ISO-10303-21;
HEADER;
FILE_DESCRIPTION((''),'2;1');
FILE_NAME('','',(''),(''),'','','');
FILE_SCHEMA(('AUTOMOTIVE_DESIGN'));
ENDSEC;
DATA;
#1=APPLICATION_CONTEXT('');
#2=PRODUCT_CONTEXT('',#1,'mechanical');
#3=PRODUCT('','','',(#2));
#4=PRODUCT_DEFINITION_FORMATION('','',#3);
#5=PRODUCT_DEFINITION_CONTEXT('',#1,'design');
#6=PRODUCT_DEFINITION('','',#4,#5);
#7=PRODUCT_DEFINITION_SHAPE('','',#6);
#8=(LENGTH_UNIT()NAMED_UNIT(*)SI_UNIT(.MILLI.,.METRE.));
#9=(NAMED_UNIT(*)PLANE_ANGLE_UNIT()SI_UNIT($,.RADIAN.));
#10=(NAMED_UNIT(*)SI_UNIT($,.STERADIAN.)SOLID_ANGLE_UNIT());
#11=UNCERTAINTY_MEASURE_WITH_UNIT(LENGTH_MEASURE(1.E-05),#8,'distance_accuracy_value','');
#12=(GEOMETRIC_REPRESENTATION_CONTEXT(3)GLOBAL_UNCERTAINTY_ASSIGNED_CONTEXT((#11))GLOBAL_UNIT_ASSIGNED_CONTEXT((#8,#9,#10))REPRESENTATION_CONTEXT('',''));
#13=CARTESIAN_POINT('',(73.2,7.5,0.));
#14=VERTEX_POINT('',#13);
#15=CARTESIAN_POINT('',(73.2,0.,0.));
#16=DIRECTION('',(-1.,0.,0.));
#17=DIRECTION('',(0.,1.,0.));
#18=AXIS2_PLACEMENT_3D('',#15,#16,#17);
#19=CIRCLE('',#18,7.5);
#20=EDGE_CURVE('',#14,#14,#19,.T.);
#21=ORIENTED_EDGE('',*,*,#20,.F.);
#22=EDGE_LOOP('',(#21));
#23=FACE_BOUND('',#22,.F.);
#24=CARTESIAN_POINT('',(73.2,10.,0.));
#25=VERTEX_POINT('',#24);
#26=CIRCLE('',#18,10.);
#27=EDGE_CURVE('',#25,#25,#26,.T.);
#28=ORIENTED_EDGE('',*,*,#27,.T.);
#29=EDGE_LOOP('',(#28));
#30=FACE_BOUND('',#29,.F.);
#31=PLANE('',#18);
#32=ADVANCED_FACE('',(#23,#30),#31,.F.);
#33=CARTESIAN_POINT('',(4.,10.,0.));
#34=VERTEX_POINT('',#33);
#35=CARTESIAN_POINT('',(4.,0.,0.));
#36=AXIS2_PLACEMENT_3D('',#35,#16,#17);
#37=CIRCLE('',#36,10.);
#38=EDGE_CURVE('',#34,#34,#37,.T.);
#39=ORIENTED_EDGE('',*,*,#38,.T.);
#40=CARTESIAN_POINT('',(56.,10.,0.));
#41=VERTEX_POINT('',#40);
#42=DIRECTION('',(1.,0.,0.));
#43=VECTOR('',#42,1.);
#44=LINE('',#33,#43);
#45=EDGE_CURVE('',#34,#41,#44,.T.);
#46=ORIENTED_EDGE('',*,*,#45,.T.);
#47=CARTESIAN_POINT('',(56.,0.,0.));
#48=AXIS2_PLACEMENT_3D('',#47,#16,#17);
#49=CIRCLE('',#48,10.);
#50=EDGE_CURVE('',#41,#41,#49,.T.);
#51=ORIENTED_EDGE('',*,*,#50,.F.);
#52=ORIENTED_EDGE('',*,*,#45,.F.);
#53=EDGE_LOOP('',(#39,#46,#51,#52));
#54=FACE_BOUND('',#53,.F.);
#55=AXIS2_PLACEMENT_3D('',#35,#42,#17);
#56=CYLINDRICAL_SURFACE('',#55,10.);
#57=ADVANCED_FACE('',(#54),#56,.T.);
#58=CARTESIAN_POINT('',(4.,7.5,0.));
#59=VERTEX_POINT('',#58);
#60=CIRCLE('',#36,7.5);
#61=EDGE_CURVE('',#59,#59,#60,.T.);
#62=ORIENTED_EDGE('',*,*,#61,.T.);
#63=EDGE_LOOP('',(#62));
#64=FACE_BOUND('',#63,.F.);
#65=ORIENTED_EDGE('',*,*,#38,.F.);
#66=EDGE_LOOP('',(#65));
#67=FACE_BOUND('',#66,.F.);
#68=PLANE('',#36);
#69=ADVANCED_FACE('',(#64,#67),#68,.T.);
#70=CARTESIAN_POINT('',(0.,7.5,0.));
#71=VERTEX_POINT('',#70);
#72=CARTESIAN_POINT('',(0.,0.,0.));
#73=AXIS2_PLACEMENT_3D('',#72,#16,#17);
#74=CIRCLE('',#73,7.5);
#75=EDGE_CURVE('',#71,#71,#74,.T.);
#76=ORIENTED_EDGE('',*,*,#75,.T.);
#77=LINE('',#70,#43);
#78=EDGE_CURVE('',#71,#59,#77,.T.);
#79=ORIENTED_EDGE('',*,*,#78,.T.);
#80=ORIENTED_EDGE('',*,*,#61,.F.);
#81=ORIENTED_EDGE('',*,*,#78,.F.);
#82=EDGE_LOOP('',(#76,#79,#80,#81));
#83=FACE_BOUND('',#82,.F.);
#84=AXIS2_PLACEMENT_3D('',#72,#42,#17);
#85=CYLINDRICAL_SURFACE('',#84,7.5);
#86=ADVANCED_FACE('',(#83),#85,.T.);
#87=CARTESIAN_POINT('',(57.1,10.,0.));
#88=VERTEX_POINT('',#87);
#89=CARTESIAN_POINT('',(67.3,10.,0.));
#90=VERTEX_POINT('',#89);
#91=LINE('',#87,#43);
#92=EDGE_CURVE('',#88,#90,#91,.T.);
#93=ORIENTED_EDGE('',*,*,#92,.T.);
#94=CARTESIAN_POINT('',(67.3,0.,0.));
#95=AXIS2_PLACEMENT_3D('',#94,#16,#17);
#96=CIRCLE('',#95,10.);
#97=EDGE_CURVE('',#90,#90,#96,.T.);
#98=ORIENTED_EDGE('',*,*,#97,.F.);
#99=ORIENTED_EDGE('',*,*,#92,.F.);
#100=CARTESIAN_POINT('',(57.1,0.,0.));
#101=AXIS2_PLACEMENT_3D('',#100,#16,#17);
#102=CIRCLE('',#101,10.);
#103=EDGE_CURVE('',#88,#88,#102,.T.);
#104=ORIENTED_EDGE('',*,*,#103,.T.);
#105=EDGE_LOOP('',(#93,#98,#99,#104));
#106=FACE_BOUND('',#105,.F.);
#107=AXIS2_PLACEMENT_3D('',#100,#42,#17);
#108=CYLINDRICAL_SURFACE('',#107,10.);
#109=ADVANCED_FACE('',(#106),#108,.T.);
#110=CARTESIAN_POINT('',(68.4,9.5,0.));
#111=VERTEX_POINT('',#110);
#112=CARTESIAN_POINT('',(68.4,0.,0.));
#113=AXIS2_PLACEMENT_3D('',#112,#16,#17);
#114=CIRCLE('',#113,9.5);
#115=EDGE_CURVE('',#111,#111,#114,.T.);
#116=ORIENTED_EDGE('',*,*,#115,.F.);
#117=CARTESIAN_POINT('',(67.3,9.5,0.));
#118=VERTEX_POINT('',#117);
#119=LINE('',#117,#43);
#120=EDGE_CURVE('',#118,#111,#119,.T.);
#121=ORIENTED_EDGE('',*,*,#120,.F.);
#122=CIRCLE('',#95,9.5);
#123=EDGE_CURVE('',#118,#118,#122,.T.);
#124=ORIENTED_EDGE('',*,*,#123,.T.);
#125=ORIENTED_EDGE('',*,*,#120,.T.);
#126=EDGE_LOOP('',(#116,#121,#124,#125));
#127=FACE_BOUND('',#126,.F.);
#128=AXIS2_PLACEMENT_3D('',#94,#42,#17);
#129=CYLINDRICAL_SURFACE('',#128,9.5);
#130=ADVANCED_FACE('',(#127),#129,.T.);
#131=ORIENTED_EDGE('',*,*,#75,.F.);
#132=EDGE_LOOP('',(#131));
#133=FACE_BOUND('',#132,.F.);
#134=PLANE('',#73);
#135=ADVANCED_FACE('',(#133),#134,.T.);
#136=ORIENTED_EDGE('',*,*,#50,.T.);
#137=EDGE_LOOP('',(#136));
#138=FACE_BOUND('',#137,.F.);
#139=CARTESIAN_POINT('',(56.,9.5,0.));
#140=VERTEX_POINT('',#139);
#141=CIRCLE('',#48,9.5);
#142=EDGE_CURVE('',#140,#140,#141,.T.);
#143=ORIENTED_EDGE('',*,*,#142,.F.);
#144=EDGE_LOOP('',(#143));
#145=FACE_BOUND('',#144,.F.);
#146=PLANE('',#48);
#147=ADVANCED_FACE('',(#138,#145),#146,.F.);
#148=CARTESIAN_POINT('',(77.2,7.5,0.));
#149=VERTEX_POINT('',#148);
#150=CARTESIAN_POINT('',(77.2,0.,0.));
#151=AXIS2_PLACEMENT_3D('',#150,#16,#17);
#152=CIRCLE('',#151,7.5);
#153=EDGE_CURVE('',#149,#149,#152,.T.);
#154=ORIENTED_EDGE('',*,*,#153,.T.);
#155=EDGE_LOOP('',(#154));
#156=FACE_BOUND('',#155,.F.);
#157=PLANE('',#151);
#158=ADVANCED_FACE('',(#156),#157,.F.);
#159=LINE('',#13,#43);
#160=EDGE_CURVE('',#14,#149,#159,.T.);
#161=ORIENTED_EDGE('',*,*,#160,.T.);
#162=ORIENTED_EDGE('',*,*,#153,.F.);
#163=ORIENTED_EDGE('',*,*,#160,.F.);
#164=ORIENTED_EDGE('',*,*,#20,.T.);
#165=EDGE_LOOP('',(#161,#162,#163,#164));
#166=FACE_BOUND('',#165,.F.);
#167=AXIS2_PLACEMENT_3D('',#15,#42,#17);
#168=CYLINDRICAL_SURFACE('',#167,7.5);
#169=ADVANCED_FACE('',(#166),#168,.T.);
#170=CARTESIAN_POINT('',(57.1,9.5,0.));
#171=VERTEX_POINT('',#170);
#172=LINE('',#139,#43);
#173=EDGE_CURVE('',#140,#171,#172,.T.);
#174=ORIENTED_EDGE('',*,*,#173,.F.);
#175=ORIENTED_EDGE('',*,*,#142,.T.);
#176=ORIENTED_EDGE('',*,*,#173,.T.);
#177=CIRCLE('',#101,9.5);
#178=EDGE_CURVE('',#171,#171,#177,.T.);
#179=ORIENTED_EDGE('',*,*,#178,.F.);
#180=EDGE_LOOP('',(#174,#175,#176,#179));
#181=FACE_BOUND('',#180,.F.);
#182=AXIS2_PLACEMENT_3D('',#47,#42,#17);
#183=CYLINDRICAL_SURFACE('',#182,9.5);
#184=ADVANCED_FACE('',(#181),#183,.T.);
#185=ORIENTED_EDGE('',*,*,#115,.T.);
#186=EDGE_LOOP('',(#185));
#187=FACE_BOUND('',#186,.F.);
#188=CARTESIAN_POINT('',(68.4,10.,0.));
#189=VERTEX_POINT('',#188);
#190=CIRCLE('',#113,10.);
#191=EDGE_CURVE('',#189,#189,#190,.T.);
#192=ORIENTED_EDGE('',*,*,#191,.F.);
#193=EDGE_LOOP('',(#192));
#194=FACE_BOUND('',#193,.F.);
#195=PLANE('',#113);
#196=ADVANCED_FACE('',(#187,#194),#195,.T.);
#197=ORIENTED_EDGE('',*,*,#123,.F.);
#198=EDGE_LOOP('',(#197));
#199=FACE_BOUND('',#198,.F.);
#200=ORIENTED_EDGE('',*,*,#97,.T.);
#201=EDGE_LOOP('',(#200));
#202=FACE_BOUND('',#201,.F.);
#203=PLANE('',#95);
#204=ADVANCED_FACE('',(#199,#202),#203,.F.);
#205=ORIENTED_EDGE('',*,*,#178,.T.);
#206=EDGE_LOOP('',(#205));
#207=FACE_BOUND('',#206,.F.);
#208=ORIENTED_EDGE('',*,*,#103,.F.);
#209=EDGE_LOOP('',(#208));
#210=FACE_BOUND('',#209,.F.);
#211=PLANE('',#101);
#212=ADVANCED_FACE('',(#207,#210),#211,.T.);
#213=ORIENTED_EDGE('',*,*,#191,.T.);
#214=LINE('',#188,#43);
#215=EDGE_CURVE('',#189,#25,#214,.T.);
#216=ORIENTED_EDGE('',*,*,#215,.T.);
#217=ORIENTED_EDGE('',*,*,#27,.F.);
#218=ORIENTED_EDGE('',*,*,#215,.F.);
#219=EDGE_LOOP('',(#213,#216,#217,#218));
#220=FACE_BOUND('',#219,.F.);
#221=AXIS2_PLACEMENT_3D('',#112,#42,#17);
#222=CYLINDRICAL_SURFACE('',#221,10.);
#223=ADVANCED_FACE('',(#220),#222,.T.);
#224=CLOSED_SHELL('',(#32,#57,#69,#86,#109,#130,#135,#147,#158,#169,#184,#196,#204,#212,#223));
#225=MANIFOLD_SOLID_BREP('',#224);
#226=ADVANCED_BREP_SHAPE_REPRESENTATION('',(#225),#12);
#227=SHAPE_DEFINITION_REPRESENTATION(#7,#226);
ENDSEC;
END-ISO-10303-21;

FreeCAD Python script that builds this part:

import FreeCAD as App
import Part
import Sketcher

V = App.Vector
Q = App.Units.Quantity


def add_polygon(sketch, points):
    """Adds a closed chain of lines whose ends are joined by coincident constraints."""
    first, n = sketch.GeometryCount, len(points)
    for a, b in zip(points, points[1:] + points[:1]):
        sketch.addGeometry(Part.LineSegment(App.Vector(*a, 0), App.Vector(*b, 0)), False)
    for i in range(n):
        sketch.addConstraint(Sketcher.Constraint("Coincident", first + i, 2, first + (i + 1) % n, 1))

doc = App.newDocument("Part")
params = doc.addObject("Spreadsheet::Sheet", "Params")
for row, (alias, value) in enumerate([
    ("sketch1_width", "4 mm"),
    ("sketch1_width2", "52 mm"),
    ("sketch1_width3", "1.1 mm"),
    ("sketch1_width4", "10.2 mm"),
    ("sketch1_height", "7.5 mm"),
    ("revolution_angle", "360 deg"),
], start=1):
    params.set(f"A{row}", alias)
    params.set(f"B{row}", "=" + value)
    params.setAlias(f"B{row}", alias)

body = doc.addObject("PartDesign::Body", "Body")

# Sketch on XY plane
sketch1 = body.newObject("Sketcher::SketchObject", "Sketch")
sketch1.AttachmentSupport = (doc.getObject("XY_Plane"), [""])
sketch1.MapMode = "FlatFace"
add_polygon(sketch1, [(0, 7.5), (0, 0), (77.2, 0), (77.2, 7.5), (73.2, 7.5), (73.2, 10), (68.4, 10), (68.4, 9.5), (67.3, 9.5), (67.3, 10), (57.1, 10), (57.1, 9.5), (56, 9.5), (56, 10), (4, 10), (4, 7.5)])  # lines 0-15
sketch1.addConstraint(Sketcher.Constraint("Vertical", 0))
sketch1.addConstraint(Sketcher.Constraint("Horizontal", 1))
sketch1.addConstraint(Sketcher.Constraint("Vertical", 2))
sketch1.addConstraint(Sketcher.Constraint("Horizontal", 3))
sketch1.addConstraint(Sketcher.Constraint("Vertical", 4))
sketch1.addConstraint(Sketcher.Constraint("Horizontal", 5))
sketch1.addConstraint(Sketcher.Constraint("Vertical", 6))
sketch1.addConstraint(Sketcher.Constraint("Horizontal", 7))
sketch1.addConstraint(Sketcher.Constraint("Vertical", 8))
sketch1.addConstraint(Sketcher.Constraint("Horizontal", 9))
sketch1.addConstraint(Sketcher.Constraint("Vertical", 10))
sketch1.addConstraint(Sketcher.Constraint("Horizontal", 11))
sketch1.addConstraint(Sketcher.Constraint("Vertical", 12))
sketch1.addConstraint(Sketcher.Constraint("Horizontal", 13))
sketch1.addConstraint(Sketcher.Constraint("Vertical", 14))
sketch1.addConstraint(Sketcher.Constraint("Horizontal", 15))
sketch1.addConstraint(Sketcher.Constraint("Coincident", 0, 2, -1, 1))
sketch1.addConstraint(Sketcher.Constraint("Horizontal", 5, 2, 8, 2))
sketch1.addConstraint(Sketcher.Constraint("Horizontal", 7, 2, 10, 2))
sketch1.addConstraint(Sketcher.Constraint("Horizontal", 9, 2, 12, 2))
sketch1.addConstraint(Sketcher.Constraint("Horizontal", 3, 2, 14, 2))
sketch1.addConstraint(Sketcher.Constraint("Equal", 7, 11))
sketch1.addConstraint(Sketcher.Constraint("Equal", 3, 15))
sketch1.addConstraint(Sketcher.Constraint("DistanceX", 3, 2, 3, 1, Q("4 mm")))
sketch1.addConstraint(Sketcher.Constraint("DistanceX", 13, 2, 13, 1, Q("52 mm")))
sketch1.addConstraint(Sketcher.Constraint("DistanceX", 7, 2, 7, 1, Q("1.1 mm")))
sketch1.addConstraint(Sketcher.Constraint("DistanceX", 9, 2, 9, 1, Q("10.2 mm")))
sketch1.addConstraint(Sketcher.Constraint("DistanceY", 0, 2, 0, 1, Q("7.5 mm")))
sketch1.addConstraint(Sketcher.Constraint("DistanceY", 4, 1, 4, 2, Q("2.5 mm")))
sketch1.addConstraint(Sketcher.Constraint("DistanceY", 6, 2, 6, 1, Q("0.5 mm")))
sketch1.addConstraint(Sketcher.Constraint("DistanceX", 1, 1, 1, 2, Q("77.2 mm")))
sketch1.setExpression("Constraints[39]", "Params.sketch1_width")
sketch1.setExpression("Constraints[40]", "Params.sketch1_width2")
sketch1.setExpression("Constraints[41]", "Params.sketch1_width3")
sketch1.setExpression("Constraints[42]", "Params.sketch1_width4")
sketch1.setExpression("Constraints[43]", "Params.sketch1_height")
revolution = body.newObject("PartDesign::Revolution", "Revolution")
revolution.Profile = sketch1
revolution.ReferenceAxis = (sketch1, ["H_Axis"])
revolution.setExpression("Angle", "Params.revolution_angle")

doc.recompute()
